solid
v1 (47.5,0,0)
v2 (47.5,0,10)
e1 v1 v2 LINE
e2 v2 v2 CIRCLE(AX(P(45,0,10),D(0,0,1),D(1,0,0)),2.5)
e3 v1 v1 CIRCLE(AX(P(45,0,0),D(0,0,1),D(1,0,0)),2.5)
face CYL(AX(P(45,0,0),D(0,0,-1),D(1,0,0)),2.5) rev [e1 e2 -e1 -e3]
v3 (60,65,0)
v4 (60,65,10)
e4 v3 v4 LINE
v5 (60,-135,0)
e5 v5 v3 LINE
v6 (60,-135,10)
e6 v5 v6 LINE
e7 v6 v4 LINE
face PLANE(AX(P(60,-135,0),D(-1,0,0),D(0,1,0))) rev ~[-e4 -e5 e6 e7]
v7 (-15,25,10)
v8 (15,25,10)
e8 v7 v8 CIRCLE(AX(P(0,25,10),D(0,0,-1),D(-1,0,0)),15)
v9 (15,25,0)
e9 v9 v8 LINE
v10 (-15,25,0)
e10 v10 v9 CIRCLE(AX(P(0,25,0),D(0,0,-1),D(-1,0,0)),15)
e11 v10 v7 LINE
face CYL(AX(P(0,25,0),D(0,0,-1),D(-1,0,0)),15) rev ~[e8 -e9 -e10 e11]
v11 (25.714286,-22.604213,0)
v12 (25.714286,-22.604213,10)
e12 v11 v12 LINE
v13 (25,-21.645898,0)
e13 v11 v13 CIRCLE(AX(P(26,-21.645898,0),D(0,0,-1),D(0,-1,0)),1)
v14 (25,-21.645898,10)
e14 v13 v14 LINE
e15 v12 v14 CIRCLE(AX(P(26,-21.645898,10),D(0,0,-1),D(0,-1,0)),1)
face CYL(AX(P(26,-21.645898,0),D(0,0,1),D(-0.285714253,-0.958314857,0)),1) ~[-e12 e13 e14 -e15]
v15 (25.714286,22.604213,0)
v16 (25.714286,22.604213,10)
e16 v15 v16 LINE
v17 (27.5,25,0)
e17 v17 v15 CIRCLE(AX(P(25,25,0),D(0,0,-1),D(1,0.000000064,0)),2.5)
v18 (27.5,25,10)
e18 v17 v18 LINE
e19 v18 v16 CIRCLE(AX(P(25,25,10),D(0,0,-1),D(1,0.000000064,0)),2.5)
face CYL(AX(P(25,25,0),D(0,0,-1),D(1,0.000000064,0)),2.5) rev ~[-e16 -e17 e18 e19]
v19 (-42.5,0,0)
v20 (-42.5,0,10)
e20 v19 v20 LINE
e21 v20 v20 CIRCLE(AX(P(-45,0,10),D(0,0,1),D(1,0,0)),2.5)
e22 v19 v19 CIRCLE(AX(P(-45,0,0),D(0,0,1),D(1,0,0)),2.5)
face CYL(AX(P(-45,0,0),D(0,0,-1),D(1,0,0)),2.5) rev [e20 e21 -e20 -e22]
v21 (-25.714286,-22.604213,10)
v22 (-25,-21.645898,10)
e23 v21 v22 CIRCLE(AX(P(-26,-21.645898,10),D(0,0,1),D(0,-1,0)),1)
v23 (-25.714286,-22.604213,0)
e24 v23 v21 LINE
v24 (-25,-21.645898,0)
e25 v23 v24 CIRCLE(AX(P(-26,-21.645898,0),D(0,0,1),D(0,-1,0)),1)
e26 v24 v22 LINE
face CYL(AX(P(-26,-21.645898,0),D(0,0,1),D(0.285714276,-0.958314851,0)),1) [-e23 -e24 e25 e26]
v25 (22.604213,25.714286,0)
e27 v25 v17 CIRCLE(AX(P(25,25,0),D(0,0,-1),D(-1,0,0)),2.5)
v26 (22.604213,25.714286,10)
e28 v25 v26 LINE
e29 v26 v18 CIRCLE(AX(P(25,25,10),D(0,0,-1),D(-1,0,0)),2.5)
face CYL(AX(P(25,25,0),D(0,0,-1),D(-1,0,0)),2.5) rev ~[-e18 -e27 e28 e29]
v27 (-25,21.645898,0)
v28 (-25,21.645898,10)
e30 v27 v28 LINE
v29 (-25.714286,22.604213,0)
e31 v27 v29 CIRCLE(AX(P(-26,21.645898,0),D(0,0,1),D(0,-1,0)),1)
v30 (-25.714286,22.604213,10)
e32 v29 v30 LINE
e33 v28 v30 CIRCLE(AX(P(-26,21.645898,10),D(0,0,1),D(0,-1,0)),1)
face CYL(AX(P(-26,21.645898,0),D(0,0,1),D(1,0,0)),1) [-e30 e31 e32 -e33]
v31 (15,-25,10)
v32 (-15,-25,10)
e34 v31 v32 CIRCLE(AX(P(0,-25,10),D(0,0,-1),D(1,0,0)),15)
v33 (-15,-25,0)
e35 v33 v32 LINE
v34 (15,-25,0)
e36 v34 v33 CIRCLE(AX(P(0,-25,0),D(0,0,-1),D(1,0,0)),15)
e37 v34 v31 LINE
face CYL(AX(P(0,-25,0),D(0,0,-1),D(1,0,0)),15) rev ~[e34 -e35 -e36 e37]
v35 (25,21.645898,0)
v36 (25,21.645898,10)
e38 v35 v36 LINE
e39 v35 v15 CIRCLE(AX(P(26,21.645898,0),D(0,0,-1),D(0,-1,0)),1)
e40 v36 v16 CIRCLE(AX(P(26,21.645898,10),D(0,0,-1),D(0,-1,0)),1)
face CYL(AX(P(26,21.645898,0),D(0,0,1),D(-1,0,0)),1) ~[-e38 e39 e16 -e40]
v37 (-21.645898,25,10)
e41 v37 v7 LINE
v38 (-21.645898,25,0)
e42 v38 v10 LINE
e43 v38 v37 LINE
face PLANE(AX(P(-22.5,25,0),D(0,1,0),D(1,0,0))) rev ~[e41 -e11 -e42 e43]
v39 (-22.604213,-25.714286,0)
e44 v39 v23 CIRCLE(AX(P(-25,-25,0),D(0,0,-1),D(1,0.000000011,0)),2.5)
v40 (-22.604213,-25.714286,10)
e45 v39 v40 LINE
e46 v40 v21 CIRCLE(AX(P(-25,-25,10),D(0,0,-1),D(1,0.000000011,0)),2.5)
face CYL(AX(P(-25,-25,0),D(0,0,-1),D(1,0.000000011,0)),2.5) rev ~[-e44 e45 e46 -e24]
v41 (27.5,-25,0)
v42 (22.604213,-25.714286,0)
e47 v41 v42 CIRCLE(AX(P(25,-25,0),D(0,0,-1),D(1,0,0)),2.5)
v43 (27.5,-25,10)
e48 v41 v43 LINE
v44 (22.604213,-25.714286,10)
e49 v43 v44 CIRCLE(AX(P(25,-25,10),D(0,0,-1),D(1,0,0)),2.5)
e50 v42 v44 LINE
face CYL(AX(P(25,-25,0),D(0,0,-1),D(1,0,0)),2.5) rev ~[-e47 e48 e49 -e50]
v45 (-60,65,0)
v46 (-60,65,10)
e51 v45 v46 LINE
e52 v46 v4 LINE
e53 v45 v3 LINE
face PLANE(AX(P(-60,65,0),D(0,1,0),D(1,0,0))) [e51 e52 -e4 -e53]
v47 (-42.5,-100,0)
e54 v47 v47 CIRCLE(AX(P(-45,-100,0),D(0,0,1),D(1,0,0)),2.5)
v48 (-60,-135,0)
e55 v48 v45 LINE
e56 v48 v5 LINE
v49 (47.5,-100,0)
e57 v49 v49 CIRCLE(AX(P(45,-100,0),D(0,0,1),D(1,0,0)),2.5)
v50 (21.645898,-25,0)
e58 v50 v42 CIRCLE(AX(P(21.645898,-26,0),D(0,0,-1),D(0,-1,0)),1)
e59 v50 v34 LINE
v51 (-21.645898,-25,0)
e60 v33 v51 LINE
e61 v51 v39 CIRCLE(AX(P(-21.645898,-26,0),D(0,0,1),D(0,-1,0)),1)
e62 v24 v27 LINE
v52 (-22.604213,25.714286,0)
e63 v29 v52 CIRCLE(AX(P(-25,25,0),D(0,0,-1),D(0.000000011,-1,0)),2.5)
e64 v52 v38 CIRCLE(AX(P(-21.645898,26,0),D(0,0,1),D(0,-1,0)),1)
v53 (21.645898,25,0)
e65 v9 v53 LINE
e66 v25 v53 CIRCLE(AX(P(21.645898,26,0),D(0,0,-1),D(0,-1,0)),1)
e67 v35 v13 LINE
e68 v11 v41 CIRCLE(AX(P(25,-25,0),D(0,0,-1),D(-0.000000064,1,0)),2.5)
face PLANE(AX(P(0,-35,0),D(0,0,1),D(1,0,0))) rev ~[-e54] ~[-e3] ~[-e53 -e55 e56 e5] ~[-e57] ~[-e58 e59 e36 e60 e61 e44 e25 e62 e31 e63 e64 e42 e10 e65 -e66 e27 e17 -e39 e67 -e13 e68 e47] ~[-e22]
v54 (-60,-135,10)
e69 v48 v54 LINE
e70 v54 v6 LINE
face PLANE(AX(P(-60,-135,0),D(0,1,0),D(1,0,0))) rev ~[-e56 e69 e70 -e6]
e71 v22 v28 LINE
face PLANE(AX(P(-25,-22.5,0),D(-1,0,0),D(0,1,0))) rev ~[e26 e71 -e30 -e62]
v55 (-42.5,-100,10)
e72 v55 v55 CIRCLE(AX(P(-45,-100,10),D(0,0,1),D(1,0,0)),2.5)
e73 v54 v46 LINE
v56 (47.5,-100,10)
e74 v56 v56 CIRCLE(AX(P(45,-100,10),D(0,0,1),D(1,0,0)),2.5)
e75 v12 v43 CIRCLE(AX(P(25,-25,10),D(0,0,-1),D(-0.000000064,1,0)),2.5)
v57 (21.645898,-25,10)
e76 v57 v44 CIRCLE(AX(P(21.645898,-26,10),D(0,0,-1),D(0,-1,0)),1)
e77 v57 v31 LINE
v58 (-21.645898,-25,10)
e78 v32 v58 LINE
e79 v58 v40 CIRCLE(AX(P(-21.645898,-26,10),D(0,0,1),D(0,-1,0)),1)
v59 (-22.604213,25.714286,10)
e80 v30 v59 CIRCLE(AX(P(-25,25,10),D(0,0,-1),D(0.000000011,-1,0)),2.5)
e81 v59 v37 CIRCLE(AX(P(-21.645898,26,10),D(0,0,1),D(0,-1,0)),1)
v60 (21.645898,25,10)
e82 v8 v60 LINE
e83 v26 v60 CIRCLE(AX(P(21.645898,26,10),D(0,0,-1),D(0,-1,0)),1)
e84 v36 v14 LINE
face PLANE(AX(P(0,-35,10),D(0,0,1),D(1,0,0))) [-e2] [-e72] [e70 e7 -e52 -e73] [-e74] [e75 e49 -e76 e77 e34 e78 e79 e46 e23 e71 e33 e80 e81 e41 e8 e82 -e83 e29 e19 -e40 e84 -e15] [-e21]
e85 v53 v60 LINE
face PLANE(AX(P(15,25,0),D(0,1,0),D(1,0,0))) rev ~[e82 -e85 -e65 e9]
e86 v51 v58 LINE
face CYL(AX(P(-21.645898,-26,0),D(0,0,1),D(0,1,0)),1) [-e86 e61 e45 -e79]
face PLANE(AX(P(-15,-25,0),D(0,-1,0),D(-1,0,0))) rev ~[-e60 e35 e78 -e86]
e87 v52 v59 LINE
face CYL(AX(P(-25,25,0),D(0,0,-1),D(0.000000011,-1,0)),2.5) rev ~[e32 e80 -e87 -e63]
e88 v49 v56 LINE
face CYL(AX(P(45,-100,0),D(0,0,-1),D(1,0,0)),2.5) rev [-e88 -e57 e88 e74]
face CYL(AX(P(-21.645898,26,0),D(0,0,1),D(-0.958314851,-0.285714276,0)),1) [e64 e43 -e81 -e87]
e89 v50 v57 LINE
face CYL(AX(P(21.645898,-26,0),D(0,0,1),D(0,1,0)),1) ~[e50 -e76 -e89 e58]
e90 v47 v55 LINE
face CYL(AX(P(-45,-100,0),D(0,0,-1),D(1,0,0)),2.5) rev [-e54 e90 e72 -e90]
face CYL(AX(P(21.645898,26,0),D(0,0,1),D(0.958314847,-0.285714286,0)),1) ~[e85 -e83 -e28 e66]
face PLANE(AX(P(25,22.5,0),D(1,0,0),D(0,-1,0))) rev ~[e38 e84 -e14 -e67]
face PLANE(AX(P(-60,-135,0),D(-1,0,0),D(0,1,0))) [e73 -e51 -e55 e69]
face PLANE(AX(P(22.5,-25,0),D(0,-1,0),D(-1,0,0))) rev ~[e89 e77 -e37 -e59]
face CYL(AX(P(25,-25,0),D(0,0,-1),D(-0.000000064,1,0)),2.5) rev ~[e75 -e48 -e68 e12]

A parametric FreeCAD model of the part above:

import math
import FreeCAD as App
import Part
import Sketcher


def edges_at(feature, points):
    """Names of the edges that pass closest to the given points."""
    edges = feature.Shape.Edges
    near = lambda p: min(range(len(edges)), key=lambda i: edges[i].distToShape(Part.Vertex(*p))[0])
    return sorted({f"Edge{near(p) + 1}" for p in points})

doc = App.newDocument("Part")
params = doc.addObject("Spreadsheet::Sheet", "Params")
for row, (alias, value) in enumerate([
    ("sketch1_diameter", "5 mm"),
    ("sketch1_radius", "15 mm"),
    ("sketch1_width", "120 mm"),
    ("sketch1_height", "200 mm"),
    ("sketch1_height2", "45 mm"),
    ("pad1_length", "10 mm"),
    ("fillet_radius", "1 mm"),
], start=1):
    params.set(f"A{row}", alias)
    params.set(f"B{row}", "=" + value)
    params.setAlias(f"B{row}", alias)

body = doc.addObject("PartDesign::Body", "Body")

# Sketch on XY plane
sketch1 = body.newObject("Sketcher::SketchObject", "Sketch")
sketch1.AttachmentSupport = (doc.getObject("XY_Plane"), [""])
sketch1.MapMode = "FlatFace"
sketch1.addGeometry([
    Part.LineSegment(App.Vector(-60, 65, 0), App.Vector(-60, -135, 0)),  # 0
    Part.LineSegment(App.Vector(-60, -135, 0), App.Vector(60, -135, 0)),  # 1
    Part.LineSegment(App.Vector(60, -135, 0), App.Vector(60, 65, 0)),  # 2
    Part.LineSegment(App.Vector(60, 65, 0), App.Vector(-60, 65, 0)),  # 3
    Part.Circle(App.Vector(-45, -100, 0), App.Vector(0, 0, 1), 2.5),  # 4
    Part.Circle(App.Vector(45, -100, 0), App.Vector(0, 0, 1), 2.5),  # 5
    Part.Circle(App.Vector(-45, 0, 0), App.Vector(0, 0, 1), 2.5),  # 6
    Part.ArcOfCircle(Part.Circle(App.Vector(0, -25, 0), App.Vector(0, 0, 1), 15), math.radians(180), math.radians(360)),  # 7
    Part.LineSegment(App.Vector(-15, -25, 0), App.Vector(-22.5, -25, 0)),  # 8
    Part.ArcOfCircle(Part.Circle(App.Vector(-25, -25, 0), App.Vector(0, 0, 1), 2.5), math.radians(90), math.radians(360)),  # 9
    Part.LineSegment(App.Vector(-25, -22.5, 0), App.Vector(-25, 22.5, 0)),  # 10
    Part.ArcOfCircle(Part.Circle(App.Vector(-25, 25, 0), App.Vector(0, 0, 1), 2.5), math.radians(0), math.radians(270)),  # 11
    Part.LineSegment(App.Vector(-22.5, 25, 0), App.Vector(-15, 25, 0)),  # 12
    Part.ArcOfCircle(Part.Circle(App.Vector(0, 25, 0), App.Vector(0, 0, 1), 15), math.radians(0), math.radians(180)),  # 13
    Part.LineSegment(App.Vector(15, 25, 0), App.Vector(22.5, 25, 0)),  # 14
    Part.ArcOfCircle(Part.Circle(App.Vector(25, 25, 0), App.Vector(0, 0, 1), 2.5), math.radians(0), math.radians(180)),  # 15
    Part.ArcOfCircle(Part.Circle(App.Vector(25, 25, 0), App.Vector(0, 0, 1), 2.5), math.radians(-90), math.radians(0)),  # 16
    Part.LineSegment(App.Vector(25, 22.5, 0), App.Vector(25, -22.5, 0)),  # 17
    Part.ArcOfCircle(Part.Circle(App.Vector(25, -25, 0), App.Vector(0, 0, 1), 2.5), math.radians(0), math.radians(90)),  # 18
    Part.ArcOfCircle(Part.Circle(App.Vector(25, -25, 0), App.Vector(0, 0, 1), 2.5), math.radians(180), math.radians(360)),  # 19
    Part.LineSegment(App.Vector(22.5, -25, 0), App.Vector(15, -25, 0)),  # 20
    Part.Circle(App.Vector(45, 0, 0), App.Vector(0, 0, 1), 2.5),  # 21
], False)
sketch1.addConstraint([
    Sketcher.Constraint("Coincident", 0, 2, 1, 1),
    Sketcher.Constraint("Coincident", 1, 2, 2, 1),
    Sketcher.Constraint("Coincident", 2, 2, 3, 1),
    Sketcher.Constraint("Coincident", 3, 2, 0, 1),
    Sketcher.Constraint("Coincident", 7, 1, 8, 1),
    Sketcher.Constraint("Coincident", 8, 2, 9, 2),
    Sketcher.Constraint("Coincident", 9, 1, 10, 1),
    Sketcher.Constraint("Coincident", 10, 2, 11, 2),
    Sketcher.Constraint("Coincident", 11, 1, 12, 1),
    Sketcher.Constraint("Coincident", 12, 2, 13, 2),
    Sketcher.Constraint("Coincident", 13, 1, 14, 1),
    Sketcher.Constraint("Coincident", 14, 2, 15, 2),
    Sketcher.Constraint("Tangent", 15, 1, 16, 2),
    Sketcher.Constraint("Coincident", 16, 1, 17, 1),
    Sketcher.Constraint("Coincident", 17, 2, 18, 2),
    Sketcher.Constraint("Tangent", 18, 1, 19, 2),
    Sketcher.Constraint("Coincident", 19, 1, 20, 1),
    Sketcher.Constraint("Coincident", 20, 2, 7, 2),
    Sketcher.Constraint("Vertical", 0),
    Sketcher.Constraint("Horizontal", 1),
    Sketcher.Constraint("Vertical", 2),
    Sketcher.Constraint("Horizontal", 3),
    Sketcher.Constraint("Horizontal", 8),
    Sketcher.Constraint("Vertical", 10),
    Sketcher.Constraint("Horizontal", 12),
    Sketcher.Constraint("Horizontal", 14),
    Sketcher.Constraint("Vertical", 17),
    Sketcher.Constraint("Horizontal", 20),
    Sketcher.Constraint("Equal", 4, 5),
    Sketcher.Constraint("Equal", 5, 6),
    Sketcher.Constraint("Equal", 6, 9),
    Sketcher.Constraint("Equal", 9, 11),
    Sketcher.Constraint("Equal", 7, 13),
    Sketcher.Constraint("Equal", 11, 15),
    Sketcher.Constraint("Equal", 15, 16),
    Sketcher.Constraint("Equal", 16, 18),
    Sketcher.Constraint("Equal", 18, 19),
    Sketcher.Constraint("Equal", 19, 21),
    Sketcher.Constraint("Symmetric", 7, 3, 13, 3, -1, 1),
    Sketcher.Constraint("Symmetric", 9, 3, 15, 3, -1, 1),
    Sketcher.Constraint("Symmetric", 11, 3, 18, 3, -1, 1),
    Sketcher.Constraint("Symmetric", 6, 3, 21, 3, -1, 1),
    Sketcher.Constraint("Symmetric", 4, 3, 5, 3, -2),
    Sketcher.Constraint("Symmetric", 11, 3, 15, 3, -2),
    Sketcher.Constraint("Symmetric", 12, 2, 13, 1, -2),
    Sketcher.Constraint("PointOnObject", 6, 3, -1),
    Sketcher.Constraint("Horizontal", 7, 3, 9, 3),
    Sketcher.Constraint("Horizontal", 19, 3, 7, 1),
    Sketcher.Constraint("Horizontal", 16, 3, 11, 1),
    Sketcher.Constraint("Horizontal", 14, 2, 15, 1),
    Sketcher.Constraint("Horizontal", 8, 2, 18, 1),
    Sketcher.Constraint("Horizontal", 18, 1, 19, 1),
    Sketcher.Constraint("Vertical", 4, 3, 6, 3),
    Sketcher.Constraint("Vertical", 11, 3, 9, 1),
    Sketcher.Constraint("Vertical", 19, 3, 16, 1),
    Sketcher.Constraint("Diameter", 4, 5.0),
    Sketcher.Constraint("Radius", 7, 15.0),
    Sketcher.Constraint("DistanceX", 1, 1, 1, 2, 120.0),
    Sketcher.Constraint("DistanceY", 0, 2, 0, 1, 200.0),
    Sketcher.Constraint("DistanceY", 10, 1, 10, 2, 45.0),
    Sketcher.Constraint("DistanceX", 8, 2, 8, 1, 7.5),
    Sketcher.Constraint("DistanceX", 4, 3, -1, 1, 45.0),
    Sketcher.Constraint("DistanceY", 4, 3, -1, 1, 100.0),
    Sketcher.Constraint("DistanceX", 0, 2, -1, 1, 60.0),
    Sketcher.Constraint("DistanceY", 0, 2, -1, 1, 135.0),
])
sketch1.setExpression("Constraints[55]", "Params.sketch1_diameter")
sketch1.setExpression("Constraints[56]", "Params.sketch1_radius")
sketch1.setExpression("Constraints[57]", "Params.sketch1_width")
sketch1.setExpression("Constraints[58]", "Params.sketch1_height")
sketch1.setExpression("Constraints[59]", "Params.sketch1_height2")
pad1 = body.newObject("PartDesign::Pad", "Pad")
pad1.Profile = sketch1
pad1.setExpression("Length", "Params.pad1_length")
doc.recompute()

fillet = body.newObject("PartDesign::Fillet", "Fillet")
fillet.Base = (pad1, edges_at(pad1, [
    (-22.5, 25, 5),
    (-25, 22.5, 5),
    (-25, -22.5, 5),
    (-22.5, -25, 5),
    (22.5, 25, 5),
    (25, 22.5, 5),
    (22.5, -25, 5),
    (25, -22.5, 5),
]))
fillet.setExpression("Radius", "Params.fillet_radius")

doc.recompute()
